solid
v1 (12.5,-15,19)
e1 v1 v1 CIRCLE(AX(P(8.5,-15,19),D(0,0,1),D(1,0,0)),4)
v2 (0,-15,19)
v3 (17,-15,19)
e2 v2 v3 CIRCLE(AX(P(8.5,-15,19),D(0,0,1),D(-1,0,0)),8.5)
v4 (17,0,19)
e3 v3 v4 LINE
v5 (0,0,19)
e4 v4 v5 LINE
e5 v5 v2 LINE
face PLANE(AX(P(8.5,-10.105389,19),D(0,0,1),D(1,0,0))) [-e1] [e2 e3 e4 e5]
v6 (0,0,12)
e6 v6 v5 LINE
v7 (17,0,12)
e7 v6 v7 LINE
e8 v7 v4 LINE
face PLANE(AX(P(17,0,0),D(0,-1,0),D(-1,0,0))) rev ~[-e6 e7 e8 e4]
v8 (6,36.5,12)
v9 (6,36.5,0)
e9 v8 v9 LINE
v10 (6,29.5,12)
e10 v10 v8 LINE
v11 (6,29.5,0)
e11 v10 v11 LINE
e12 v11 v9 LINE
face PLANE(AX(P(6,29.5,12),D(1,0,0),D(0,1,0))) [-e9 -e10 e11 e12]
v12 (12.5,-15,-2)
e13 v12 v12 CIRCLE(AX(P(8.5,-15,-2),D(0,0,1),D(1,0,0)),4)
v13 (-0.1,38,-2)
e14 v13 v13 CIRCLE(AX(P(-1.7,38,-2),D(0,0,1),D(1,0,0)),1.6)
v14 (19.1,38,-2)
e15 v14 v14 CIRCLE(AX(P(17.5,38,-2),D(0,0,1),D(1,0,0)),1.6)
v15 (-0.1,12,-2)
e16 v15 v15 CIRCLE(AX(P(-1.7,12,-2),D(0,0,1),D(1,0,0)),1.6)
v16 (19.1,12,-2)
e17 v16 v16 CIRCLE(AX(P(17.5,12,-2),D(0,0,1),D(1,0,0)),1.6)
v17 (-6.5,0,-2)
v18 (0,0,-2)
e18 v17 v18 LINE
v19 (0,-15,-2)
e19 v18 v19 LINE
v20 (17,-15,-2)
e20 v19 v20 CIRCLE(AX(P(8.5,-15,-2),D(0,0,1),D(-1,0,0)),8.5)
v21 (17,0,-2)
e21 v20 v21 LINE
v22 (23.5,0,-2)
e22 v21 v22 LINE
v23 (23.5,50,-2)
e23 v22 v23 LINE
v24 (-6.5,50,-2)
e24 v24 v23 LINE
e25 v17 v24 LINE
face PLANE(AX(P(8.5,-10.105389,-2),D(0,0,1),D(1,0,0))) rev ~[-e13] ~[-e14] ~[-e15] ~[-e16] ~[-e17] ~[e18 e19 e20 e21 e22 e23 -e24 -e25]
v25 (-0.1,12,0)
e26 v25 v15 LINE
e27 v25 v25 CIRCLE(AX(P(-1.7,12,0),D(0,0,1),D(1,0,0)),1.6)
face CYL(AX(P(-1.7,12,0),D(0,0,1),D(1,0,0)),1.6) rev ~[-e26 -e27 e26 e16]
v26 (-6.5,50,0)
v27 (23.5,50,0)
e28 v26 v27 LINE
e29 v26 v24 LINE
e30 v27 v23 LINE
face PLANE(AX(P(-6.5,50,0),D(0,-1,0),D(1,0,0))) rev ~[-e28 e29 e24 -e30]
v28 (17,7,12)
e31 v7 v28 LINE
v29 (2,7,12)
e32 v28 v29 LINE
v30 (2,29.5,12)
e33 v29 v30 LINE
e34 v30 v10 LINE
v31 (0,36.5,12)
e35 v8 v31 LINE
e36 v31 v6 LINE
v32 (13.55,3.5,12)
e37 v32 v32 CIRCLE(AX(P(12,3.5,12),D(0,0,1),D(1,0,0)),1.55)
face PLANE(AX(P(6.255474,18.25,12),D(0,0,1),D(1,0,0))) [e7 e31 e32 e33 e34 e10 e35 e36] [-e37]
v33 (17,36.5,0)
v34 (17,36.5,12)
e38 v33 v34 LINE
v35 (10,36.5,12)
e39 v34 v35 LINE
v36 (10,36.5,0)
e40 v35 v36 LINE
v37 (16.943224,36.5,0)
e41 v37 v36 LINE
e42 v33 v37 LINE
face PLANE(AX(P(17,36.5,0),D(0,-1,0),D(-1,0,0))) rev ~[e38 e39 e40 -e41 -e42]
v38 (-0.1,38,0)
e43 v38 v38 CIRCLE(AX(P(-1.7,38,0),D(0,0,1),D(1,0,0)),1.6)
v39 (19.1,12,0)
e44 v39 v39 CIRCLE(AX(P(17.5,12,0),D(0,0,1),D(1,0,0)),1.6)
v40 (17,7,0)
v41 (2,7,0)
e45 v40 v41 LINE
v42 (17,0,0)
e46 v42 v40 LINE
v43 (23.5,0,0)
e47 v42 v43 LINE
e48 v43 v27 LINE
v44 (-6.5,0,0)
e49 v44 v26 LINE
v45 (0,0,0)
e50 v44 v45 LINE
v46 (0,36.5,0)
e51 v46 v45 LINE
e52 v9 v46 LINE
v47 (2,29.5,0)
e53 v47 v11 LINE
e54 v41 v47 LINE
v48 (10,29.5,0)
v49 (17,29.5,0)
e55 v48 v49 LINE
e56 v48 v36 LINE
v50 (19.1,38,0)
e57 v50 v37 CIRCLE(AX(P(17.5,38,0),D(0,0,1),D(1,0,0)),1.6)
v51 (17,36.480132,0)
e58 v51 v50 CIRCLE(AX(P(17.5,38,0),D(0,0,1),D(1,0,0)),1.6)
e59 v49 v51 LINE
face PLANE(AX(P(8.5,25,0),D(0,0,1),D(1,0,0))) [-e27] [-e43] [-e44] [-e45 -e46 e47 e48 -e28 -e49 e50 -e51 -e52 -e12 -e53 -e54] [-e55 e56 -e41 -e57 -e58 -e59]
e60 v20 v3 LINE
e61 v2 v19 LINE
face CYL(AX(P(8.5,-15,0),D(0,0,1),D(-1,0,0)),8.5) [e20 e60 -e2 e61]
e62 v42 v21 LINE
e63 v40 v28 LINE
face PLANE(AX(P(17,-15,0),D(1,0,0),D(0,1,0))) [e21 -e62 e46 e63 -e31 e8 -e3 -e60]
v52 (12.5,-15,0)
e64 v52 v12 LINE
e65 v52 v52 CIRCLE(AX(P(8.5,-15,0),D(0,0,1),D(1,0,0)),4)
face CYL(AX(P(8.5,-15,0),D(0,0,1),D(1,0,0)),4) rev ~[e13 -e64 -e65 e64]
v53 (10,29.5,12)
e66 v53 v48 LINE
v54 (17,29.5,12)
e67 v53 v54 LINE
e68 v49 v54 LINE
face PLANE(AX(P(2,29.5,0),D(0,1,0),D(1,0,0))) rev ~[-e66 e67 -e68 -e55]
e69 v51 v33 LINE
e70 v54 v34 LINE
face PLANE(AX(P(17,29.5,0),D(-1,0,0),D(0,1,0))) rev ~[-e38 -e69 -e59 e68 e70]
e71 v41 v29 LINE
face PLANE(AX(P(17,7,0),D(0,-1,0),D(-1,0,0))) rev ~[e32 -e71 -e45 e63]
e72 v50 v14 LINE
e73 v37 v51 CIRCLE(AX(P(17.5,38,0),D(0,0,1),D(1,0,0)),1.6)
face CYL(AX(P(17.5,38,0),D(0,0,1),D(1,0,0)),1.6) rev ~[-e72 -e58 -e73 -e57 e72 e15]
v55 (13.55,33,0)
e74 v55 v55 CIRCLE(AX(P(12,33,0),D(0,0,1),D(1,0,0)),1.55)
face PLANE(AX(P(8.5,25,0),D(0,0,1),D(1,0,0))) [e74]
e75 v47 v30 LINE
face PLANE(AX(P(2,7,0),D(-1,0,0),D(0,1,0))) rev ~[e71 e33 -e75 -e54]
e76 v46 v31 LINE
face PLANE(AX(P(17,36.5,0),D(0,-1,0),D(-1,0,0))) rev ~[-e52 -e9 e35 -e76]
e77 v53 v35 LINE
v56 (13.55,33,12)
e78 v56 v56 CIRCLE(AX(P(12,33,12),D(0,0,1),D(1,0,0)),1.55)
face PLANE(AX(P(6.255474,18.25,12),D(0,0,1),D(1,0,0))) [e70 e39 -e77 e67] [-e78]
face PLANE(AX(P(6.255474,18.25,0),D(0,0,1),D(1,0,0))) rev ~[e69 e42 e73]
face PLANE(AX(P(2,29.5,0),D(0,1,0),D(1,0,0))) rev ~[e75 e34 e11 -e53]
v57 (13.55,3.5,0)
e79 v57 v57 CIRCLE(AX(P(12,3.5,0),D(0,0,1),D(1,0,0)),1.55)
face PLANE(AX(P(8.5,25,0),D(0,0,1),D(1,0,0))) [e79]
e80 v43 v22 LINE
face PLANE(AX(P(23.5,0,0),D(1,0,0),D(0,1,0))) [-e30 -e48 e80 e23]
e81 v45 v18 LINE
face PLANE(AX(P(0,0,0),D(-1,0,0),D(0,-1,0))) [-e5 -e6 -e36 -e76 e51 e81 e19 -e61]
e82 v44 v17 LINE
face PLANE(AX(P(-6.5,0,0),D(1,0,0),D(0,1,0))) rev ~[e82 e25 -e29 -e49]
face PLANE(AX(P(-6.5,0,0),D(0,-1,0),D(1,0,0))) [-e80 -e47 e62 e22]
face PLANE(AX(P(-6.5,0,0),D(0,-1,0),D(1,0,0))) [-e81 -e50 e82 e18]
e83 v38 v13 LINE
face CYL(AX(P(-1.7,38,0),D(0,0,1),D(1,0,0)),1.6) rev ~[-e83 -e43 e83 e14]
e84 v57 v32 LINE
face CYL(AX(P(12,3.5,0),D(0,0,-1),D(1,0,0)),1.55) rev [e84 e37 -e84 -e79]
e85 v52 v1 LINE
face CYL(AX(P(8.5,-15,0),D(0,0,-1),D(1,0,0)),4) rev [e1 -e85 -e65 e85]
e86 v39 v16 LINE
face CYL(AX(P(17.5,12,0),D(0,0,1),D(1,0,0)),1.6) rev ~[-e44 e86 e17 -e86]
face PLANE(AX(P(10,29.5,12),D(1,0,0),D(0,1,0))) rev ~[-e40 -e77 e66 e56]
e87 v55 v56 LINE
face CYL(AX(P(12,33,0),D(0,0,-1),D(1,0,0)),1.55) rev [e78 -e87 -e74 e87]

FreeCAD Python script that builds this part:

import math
import FreeCAD as App
import Part
import Sketcher
from FreeCAD import Vector

doc = App.newDocument("Part")
body = doc.addObject("PartDesign::Body", "Body")

# Sketch on XY plane
sketch1 = doc.addObject("Sketcher::SketchObject", "Sketch")
body.addObject(sketch1)
sketch1.AttachmentSupport = (doc.XY_Plane, [""])
sketch1.MapMode = "FlatFace"
sketch1.addGeometry([
    Part.LineSegment(Vector(0, 0, 0), Vector(17, 0, 0)),  # 0
    Part.LineSegment(Vector(17, 0, 0), Vector(17, 7, 0)),  # 1
    Part.LineSegment(Vector(17, 7, 0), Vector(2, 7, 0)),  # 2
    Part.LineSegment(Vector(2, 7, 0), Vector(2, 29.5, 0)),  # 3
    Part.LineSegment(Vector(2, 29.5, 0), Vector(17, 29.5, 0)),  # 4
    Part.LineSegment(Vector(17, 29.5, 0), Vector(17, 36.5, 0)),  # 5
    Part.LineSegment(Vector(17, 36.5, 0), Vector(0, 36.5, 0)),  # 6
    Part.LineSegment(Vector(0, 36.5, 0), Vector(0, 0, 0)),  # 7
    Part.Circle(Vector(12, 3.5, 0), Vector(0, 0, 1), 1.6),  # 8
    Part.Circle(Vector(12, 33, 0), Vector(0, 0, 1), 1.6),  # 9
], False)
sketch1.addConstraint([
    Sketcher.Constraint("Coincident", 0, 2, 1, 1),
    Sketcher.Constraint("Coincident", 1, 2, 2, 1),
    Sketcher.Constraint("Coincident", 2, 2, 3, 1),
    Sketcher.Constraint("Coincident", 3, 2, 4, 1),
    Sketcher.Constraint("Coincident", 4, 2, 5, 1),
    Sketcher.Constraint("Coincident", 5, 2, 6, 1),
    Sketcher.Constraint("Coincident", 6, 2, 7, 1),
    Sketcher.Constraint("Coincident", 7, 2, 0, 1),
    Sketcher.Constraint("Horizontal", 0),
    Sketcher.Constraint("Vertical", 1),
    Sketcher.Constraint("Horizontal", 2),
    Sketcher.Constraint("Vertical", 3),
    Sketcher.Constraint("Horizontal", 4),
    Sketcher.Constraint("Vertical", 5),
    Sketcher.Constraint("Horizontal", 6),
    Sketcher.Constraint("Vertical", 7),
    Sketcher.Constraint("Coincident", 7, 2, -1, 1),
    Sketcher.Constraint("Equal", 8, 9),
    Sketcher.Constraint("Vertical", 8, 3, 9, 3),
    Sketcher.Constraint("Vertical", 1, 2, 4, 2),
    Sketcher.Constraint("Equal", 1, 5),
    Sketcher.Constraint("Diameter", 8, 3.1),
    Sketcher.Constraint("DistanceX", 0, 1, 0, 2, 17.0),
    Sketcher.Constraint("DistanceX", 2, 2, 2, 1, 15.0),
    Sketcher.Constraint("DistanceY", 1, 1, 1, 2, 7.0),
    Sketcher.Constraint("DistanceY", 3, 1, 3, 2, 22.5),
    Sketcher.Constraint("DistanceX", -1, 1, 8, 3, 12.0),
    Sketcher.Constraint("DistanceY", -1, 1, 9, 3, 33.0),
    Sketcher.Constraint("DistanceY", 8, 3, 3, 2, 26.0),
])
pad1 = doc.addObject("PartDesign::Pad", "Pad")
body.addObject(pad1)
pad1.Profile = sketch1
pad1.Length = 12

# Sketch on XY plane
sketch2 = doc.addObject("Sketcher::SketchObject", "Sketch001")
body.addObject(sketch2)
sketch2.AttachmentSupport = (doc.XY_Plane, [""])
sketch2.MapMode = "FlatFace"
sketch2.addGeometry([
    Part.LineSegment(Vector(-6.5, 50, 0), Vector(-6.5, 0, 0)),  # 0
    Part.LineSegment(Vector(-6.5, 0, 0), Vector(23.5, 0, 0)),  # 1
    Part.LineSegment(Vector(23.5, 0, 0), Vector(23.5, 50, 0)),  # 2
    Part.LineSegment(Vector(23.5, 50, 0), Vector(-6.5, 50, 0)),  # 3
    Part.Circle(Vector(-1.7, 12, 0), Vector(0, 0, 1), 1.6),  # 4
    Part.Circle(Vector(17.5, 12, 0), Vector(0, 0, 1), 1.6),  # 5
    Part.Circle(Vector(-1.7, 38, 0), Vector(0, 0, 1), 1.6),  # 6
    Part.Circle(Vector(17.5, 38, 0), Vector(0, 0, 1), 1.6),  # 7
], False)
sketch2.addConstraint([
    Sketcher.Constraint("Coincident", 0, 2, 1, 1),
    Sketcher.Constraint("Coincident", 1, 2, 2, 1),
    Sketcher.Constraint("Coincident", 2, 2, 3, 1),
    Sketcher.Constraint("Coincident", 3, 2, 0, 1),
    Sketcher.Constraint("Vertical", 0),
    Sketcher.Constraint("Horizontal", 1),
    Sketcher.Constraint("Vertical", 2),
    Sketcher.Constraint("Horizontal", 3),
    Sketcher.Constraint("Equal", 4, 5),
    Sketcher.Constraint("Equal", 5, 6),
    Sketcher.Constraint("Equal", 6, 7),
    Sketcher.Constraint("PointOnObject", 0, 2, -1),
    Sketcher.Constraint("Horizontal", 4, 3, 5, 3),
    Sketcher.Constraint("Horizontal", 6, 3, 7, 3),
    Sketcher.Constraint("Vertical", 4, 3, 6, 3),
    Sketcher.Constraint("Vertical", 5, 3, 7, 3),
    Sketcher.Constraint("Diameter", 4, 3.2),
    Sketcher.Constraint("DistanceX", 1, 1, 1, 2, 30.0),
    Sketcher.Constraint("DistanceY", 0, 2, 0, 1, 50.0),
    Sketcher.Constraint("DistanceY", -1, 1, 4, 3, 12.0),
    Sketcher.Constraint("DistanceY", -1, 1, 6, 3, 38.0),
    Sketcher.Constraint("DistanceX", 0, 2, 5, 3, 24.0),
    Sketcher.Constraint("DistanceX", 4, 3, -1, 1, 1.7),
    Sketcher.Constraint("DistanceX", -1, 1, 5, 3, 17.5),
])
pad2 = doc.addObject("PartDesign::Pad", "Pad001")
body.addObject(pad2)
pad2.Profile = sketch2
pad2.Length = 2
pad2.Reversed = True

# Sketch on XY plane
sketch3 = doc.addObject("Sketcher::SketchObject", "Sketch002")
body.addObject(sketch3)
sketch3.AttachmentSupport = (doc.XY_Plane, [""])
sketch3.MapMode = "FlatFace"
sketch3.AttachmentOffset = App.Placement(Vector(0, 0, 12), App.Rotation())
sketch3.addGeometry([
    Part.LineSegment(Vector(6, 36.5, 0), Vector(6, 29.5, 0)),
    Part.LineSegment(Vector(6, 29.5, 0), Vector(10, 29.5, 0)),
    Part.LineSegment(Vector(10, 29.5, 0), Vector(10, 36.5, 0)),
    Part.LineSegment(Vector(10, 36.5, 0), Vector(6, 36.5, 0)),
], False)
sketch3.addConstraint([
    Sketcher.Constraint("Coincident", 0, 2, 1, 1),
    Sketcher.Constraint("Coincident", 1, 2, 2, 1),
    Sketcher.Constraint("Coincident", 2, 2, 3, 1),
    Sketcher.Constraint("Coincident", 3, 2, 0, 1),
    Sketcher.Constraint("Vertical", 0),
    Sketcher.Constraint("Horizontal", 1),
    Sketcher.Constraint("Vertical", 2),
    Sketcher.Constraint("Horizontal", 3),
    Sketcher.Constraint("DistanceX", 1, 1, 1, 2, 4.0),
    Sketcher.Constraint("DistanceY", 0, 2, 0, 1, 7.0),
    Sketcher.Constraint("DistanceX", -1, 1, 0, 2, 6.0),
    Sketcher.Constraint("DistanceY", -1, 1, 0, 2, 29.5),
])
pocket1 = doc.addObject("PartDesign::Pocket", "Pocket")
body.addObject(pocket1)
pocket1.Profile = sketch3
pocket1.Length = 12

# Sketch on XY plane
sketch4 = doc.addObject("Sketcher::SketchObject", "Sketch003")
body.addObject(sketch4)
sketch4.AttachmentSupport = (doc.XY_Plane, [""])
sketch4.MapMode = "FlatFace"
sketch4.addGeometry([
    Part.ArcOfCircle(Part.Circle(Vector(8.5, -15, 0), Vector(0, 0, 1), 8.5), math.radians(180), math.radians(360)),  # 0
    Part.LineSegment(Vector(17, -15, 0), Vector(17, 0, 0)),  # 1
    Part.LineSegment(Vector(17, 0, 0), Vector(0, 0, 0)),  # 2
    Part.LineSegment(Vector(0, 0, 0), Vector(0, -15, 0)),  # 3
    Part.Circle(Vector(8.5, -15, 0), Vector(0, 0, 1), 4),  # 4
], False)
sketch4.addConstraint([
    Sketcher.Constraint("Tangent", 0, 2, 1, 1),
    Sketcher.Constraint("Coincident", 1, 2, 2, 1),
    Sketcher.Constraint("Coincident", 2, 2, 3, 1),
    Sketcher.Constraint("Tangent", 3, 2, 0, 1),
    Sketcher.Constraint("Vertical", 1),
    Sketcher.Constraint("Horizontal", 2),
    Sketcher.Constraint("Vertical", 3),
    Sketcher.Constraint("Coincident", 2, 2, -1, 1),
    Sketcher.Constraint("Coincident", 4, 3, 0, 3),
    Sketcher.Constraint("Diameter", 4, 8.0),
    Sketcher.Constraint("Radius", 0, 8.5),
    Sketcher.Constraint("DistanceY", 1, 1, 1, 2, 15.0),
])
pad3 = doc.addObject("PartDesign::Pad", "Pad002")
body.addObject(pad3)
pad3.Profile = sketch4
pad3.Type = "TwoLengths"
pad3.Length = 19
pad3.Length2 = 2

doc.recompute()
